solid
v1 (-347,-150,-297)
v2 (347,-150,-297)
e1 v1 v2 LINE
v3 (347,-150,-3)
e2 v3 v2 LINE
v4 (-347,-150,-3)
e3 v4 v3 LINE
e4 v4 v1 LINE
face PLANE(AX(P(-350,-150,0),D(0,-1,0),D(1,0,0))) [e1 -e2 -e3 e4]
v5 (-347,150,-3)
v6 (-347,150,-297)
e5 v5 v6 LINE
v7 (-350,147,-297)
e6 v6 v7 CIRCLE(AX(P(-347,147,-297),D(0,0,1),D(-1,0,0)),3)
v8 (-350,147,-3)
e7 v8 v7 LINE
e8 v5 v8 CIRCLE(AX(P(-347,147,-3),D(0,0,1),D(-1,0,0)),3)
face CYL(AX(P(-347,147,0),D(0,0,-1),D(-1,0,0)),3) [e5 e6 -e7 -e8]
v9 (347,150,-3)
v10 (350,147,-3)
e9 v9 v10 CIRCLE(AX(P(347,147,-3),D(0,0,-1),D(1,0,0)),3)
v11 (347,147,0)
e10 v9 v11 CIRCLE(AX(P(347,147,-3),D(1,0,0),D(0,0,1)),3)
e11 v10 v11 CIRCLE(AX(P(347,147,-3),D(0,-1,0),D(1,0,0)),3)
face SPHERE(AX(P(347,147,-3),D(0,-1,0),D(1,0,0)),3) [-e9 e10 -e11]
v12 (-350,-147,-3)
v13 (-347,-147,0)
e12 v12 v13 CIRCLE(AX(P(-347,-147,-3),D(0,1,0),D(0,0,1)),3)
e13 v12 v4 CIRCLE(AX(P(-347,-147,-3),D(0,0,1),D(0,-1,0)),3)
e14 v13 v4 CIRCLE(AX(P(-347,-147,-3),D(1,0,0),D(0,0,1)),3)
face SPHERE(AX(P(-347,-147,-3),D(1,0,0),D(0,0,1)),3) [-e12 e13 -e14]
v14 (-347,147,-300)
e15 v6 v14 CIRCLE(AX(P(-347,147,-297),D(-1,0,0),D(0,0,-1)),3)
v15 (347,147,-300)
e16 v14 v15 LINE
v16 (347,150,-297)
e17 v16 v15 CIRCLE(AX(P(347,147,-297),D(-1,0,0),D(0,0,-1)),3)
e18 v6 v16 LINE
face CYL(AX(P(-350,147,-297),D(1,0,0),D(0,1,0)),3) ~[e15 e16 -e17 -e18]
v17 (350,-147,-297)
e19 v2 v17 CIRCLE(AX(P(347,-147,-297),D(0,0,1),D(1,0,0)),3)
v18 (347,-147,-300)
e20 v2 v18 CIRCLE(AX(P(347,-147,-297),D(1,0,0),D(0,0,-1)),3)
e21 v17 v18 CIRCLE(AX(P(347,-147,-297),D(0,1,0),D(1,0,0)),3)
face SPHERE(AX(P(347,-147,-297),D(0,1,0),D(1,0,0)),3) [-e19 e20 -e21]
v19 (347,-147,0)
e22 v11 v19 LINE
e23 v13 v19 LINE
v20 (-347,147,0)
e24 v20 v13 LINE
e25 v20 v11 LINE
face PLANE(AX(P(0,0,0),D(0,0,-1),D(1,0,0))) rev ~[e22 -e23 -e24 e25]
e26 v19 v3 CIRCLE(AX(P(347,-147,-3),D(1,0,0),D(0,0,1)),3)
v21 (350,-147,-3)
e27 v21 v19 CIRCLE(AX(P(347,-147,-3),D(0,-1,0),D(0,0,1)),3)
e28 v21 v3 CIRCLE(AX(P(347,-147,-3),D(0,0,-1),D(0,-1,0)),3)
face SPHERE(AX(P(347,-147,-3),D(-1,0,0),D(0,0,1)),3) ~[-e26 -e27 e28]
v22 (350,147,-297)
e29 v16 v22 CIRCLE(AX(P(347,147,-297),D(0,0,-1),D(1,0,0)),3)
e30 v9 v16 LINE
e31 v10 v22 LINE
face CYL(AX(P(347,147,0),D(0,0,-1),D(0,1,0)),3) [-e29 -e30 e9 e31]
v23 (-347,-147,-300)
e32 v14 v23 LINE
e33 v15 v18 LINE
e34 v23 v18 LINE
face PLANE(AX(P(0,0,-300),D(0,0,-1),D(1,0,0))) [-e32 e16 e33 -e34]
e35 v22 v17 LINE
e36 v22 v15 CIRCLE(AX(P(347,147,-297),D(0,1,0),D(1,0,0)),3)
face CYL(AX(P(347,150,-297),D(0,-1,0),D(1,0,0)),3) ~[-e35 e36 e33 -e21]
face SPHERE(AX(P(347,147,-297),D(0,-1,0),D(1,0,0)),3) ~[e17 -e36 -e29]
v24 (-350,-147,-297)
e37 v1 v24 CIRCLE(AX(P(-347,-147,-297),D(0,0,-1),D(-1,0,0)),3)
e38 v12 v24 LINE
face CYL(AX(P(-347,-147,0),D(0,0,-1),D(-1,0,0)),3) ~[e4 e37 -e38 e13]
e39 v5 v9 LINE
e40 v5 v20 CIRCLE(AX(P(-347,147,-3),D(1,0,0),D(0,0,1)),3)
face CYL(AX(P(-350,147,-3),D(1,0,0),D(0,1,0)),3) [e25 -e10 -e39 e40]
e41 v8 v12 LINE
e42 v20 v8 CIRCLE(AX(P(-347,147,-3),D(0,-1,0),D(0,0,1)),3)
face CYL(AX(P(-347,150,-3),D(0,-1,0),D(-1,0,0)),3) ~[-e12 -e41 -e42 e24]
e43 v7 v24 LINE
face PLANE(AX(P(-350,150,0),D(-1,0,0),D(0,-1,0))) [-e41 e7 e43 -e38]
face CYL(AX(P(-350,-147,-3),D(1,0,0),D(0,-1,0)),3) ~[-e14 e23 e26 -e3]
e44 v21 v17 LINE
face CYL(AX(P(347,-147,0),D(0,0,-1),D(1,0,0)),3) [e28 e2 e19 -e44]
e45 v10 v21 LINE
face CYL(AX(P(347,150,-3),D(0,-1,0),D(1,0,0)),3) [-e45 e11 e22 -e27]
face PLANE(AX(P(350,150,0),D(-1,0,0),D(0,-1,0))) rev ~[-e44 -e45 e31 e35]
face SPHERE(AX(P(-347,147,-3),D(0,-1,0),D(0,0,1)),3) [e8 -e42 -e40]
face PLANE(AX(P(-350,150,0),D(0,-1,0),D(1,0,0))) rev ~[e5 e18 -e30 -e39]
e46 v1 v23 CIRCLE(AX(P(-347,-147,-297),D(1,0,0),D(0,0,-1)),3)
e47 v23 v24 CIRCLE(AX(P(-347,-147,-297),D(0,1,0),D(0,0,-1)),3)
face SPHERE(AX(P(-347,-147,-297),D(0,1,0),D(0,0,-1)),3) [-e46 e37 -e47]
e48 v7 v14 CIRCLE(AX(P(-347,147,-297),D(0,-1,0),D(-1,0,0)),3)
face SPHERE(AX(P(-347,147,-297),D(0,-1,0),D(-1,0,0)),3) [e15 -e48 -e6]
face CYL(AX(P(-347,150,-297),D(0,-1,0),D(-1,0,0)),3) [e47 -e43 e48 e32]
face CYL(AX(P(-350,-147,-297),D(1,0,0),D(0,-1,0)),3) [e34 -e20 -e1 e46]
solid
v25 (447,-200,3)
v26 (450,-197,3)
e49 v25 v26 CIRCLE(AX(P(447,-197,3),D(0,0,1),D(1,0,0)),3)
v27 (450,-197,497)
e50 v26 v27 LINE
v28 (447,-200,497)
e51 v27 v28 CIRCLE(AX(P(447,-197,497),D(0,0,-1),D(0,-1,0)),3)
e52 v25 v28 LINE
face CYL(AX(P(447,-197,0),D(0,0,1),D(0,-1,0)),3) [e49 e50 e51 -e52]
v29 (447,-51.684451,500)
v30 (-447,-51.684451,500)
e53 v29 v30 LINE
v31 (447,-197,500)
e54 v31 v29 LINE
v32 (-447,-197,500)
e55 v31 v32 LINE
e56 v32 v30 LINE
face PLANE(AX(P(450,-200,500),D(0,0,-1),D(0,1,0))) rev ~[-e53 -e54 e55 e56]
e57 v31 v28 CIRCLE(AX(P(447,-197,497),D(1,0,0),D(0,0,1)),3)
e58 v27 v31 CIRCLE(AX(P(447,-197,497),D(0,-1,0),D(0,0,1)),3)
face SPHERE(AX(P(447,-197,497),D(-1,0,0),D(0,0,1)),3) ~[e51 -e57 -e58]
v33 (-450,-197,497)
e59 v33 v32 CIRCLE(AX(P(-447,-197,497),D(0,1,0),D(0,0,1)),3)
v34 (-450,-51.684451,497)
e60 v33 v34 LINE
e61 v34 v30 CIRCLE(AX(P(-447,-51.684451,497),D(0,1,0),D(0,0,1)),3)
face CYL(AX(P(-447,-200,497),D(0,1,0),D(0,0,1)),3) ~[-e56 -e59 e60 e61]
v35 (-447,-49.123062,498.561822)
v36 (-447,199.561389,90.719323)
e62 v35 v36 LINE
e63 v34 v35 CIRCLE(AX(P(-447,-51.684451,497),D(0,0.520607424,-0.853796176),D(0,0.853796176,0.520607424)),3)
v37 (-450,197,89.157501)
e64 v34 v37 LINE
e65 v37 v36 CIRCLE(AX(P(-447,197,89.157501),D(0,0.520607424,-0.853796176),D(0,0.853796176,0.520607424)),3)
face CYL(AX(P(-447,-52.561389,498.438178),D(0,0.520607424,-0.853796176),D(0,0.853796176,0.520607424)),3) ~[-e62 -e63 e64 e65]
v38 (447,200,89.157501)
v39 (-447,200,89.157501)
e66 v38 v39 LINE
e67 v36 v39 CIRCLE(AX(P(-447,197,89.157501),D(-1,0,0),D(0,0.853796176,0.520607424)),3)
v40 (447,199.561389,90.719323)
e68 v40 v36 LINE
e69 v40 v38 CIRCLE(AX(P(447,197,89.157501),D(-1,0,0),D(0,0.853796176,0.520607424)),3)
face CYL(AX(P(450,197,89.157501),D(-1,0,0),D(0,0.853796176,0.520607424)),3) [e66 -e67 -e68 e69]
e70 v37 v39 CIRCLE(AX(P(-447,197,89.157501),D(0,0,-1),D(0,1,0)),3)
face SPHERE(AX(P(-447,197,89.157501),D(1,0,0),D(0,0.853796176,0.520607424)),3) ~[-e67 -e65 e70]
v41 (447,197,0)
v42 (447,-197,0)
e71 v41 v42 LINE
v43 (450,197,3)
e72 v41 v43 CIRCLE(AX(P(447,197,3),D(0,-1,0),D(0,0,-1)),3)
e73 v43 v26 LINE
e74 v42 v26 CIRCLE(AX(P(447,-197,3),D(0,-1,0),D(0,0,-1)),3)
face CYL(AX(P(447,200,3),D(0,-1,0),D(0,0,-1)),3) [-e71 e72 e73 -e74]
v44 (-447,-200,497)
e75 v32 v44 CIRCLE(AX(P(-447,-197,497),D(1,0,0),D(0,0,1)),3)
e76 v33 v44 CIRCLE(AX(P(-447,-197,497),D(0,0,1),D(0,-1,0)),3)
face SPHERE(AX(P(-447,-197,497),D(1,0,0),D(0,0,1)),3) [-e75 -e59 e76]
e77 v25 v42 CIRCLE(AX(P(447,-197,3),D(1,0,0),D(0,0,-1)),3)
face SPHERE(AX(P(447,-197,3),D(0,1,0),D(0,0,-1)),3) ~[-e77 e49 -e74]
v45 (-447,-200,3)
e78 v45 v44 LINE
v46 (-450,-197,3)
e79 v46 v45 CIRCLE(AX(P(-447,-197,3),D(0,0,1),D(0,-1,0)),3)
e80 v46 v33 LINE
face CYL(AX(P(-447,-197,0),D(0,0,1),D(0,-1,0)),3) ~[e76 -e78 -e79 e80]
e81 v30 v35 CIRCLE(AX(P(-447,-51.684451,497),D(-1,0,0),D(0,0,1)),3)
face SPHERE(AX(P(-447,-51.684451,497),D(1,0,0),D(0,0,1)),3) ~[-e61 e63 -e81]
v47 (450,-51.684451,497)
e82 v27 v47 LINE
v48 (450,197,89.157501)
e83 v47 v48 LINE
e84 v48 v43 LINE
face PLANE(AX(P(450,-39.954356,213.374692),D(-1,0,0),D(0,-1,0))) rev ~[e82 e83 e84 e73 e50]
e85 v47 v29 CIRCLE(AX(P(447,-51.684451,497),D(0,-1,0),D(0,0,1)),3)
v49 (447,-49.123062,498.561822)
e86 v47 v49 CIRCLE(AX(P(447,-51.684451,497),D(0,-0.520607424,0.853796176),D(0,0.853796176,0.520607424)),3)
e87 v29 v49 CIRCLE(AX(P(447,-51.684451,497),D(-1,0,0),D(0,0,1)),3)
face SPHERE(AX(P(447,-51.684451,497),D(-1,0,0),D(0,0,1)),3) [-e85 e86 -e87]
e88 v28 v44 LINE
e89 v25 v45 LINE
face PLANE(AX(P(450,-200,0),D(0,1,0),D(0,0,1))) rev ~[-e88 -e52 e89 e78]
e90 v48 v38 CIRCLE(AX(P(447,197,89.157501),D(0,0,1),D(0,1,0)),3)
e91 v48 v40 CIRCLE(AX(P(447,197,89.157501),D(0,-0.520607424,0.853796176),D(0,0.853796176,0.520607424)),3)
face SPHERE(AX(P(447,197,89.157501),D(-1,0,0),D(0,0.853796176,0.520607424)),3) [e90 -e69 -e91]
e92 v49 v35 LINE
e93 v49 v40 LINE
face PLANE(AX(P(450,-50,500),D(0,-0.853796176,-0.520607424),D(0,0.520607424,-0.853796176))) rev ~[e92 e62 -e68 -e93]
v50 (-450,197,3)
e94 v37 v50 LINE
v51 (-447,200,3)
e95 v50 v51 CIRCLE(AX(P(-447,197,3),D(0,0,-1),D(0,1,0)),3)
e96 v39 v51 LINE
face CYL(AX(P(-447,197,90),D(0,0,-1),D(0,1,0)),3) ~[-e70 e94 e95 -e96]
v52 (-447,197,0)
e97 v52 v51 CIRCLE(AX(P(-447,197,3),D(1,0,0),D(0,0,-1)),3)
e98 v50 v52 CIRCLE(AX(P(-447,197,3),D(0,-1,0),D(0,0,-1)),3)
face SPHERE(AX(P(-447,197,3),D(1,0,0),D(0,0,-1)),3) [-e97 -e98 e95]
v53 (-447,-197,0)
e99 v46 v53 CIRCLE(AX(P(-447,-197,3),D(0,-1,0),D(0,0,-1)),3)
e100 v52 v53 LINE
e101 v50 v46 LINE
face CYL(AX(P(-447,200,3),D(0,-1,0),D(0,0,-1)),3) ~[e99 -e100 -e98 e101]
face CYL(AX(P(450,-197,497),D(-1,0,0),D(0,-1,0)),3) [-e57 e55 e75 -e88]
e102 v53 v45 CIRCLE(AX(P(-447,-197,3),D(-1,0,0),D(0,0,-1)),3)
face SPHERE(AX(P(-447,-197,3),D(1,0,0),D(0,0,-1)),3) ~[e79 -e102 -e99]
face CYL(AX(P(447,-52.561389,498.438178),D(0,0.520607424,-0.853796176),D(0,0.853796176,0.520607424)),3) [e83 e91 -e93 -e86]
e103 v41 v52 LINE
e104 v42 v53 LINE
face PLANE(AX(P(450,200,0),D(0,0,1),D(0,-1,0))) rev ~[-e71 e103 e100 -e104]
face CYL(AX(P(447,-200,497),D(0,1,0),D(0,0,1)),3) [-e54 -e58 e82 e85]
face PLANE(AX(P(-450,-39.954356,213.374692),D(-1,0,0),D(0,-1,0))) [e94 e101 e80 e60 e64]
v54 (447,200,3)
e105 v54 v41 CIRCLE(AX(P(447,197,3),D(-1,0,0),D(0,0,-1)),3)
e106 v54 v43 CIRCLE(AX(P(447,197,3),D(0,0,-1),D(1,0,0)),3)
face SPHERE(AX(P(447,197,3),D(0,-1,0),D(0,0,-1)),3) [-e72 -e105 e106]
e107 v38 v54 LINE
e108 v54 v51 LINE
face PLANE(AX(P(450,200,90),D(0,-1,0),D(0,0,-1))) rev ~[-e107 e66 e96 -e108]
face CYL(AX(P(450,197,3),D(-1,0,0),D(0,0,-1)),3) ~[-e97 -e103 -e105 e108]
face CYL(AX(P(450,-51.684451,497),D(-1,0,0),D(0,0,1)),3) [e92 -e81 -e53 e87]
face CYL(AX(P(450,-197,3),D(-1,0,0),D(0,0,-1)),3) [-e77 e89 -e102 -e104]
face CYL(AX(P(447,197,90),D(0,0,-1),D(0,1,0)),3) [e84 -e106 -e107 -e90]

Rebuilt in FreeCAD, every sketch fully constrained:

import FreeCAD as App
import Part
import Sketcher
from FreeCAD import Vector


def add_polygon(sketch, points):
    """Adds a closed chain of lines whose ends are joined by coincident constraints."""
    first, n = sketch.GeometryCount, len(points)
    for a, b in zip(points, points[1:] + points[:1]):
        sketch.addGeometry(Part.LineSegment(App.Vector(*a, 0), App.Vector(*b, 0)), False)
    for i in range(n):
        sketch.addConstraint(Sketcher.Constraint("Coincident", first + i, 2, first + (i + 1) % n, 1))

doc = App.newDocument("Part")
body = doc.addObject("PartDesign::Body", "Body")

sketch1 = body.newObject("Sketcher::SketchObject", "Sketch")
sketch1.AttachmentSupport = (doc.getObject("YZ_Plane"), [""])
sketch1.MapMode = "FlatFace"
sketch1.AttachmentOffset = App.Placement(Vector(0, 0, 450), App.Rotation())
add_polygon(sketch1, [(200, 0), (-200, 0), (-200, 500), (-50, 500), (200, 90)])
sketch1.addConstraint(Sketcher.Constraint("Horizontal", 0))
sketch1.addConstraint(Sketcher.Constraint("Vertical", 1))
sketch1.addConstraint(Sketcher.Constraint("Horizontal", 2))
sketch1.addConstraint(Sketcher.Constraint("Vertical", 4))
sketch1.addConstraint(Sketcher.Constraint("Symmetric", 0, 2, 4, 2, -1, 1))
sketch1.addConstraint(Sketcher.Constraint("DistanceX", 0, 2, 0, 1, 400.0))
sketch1.addConstraint(Sketcher.Constraint("DistanceX", 2, 1, 2, 2, 150.0))
sketch1.addConstraint(Sketcher.Constraint("DistanceY", 1, 1, 1, 2, 500.0))
sketch1.addConstraint(Sketcher.Constraint("DistanceY", 4, 2, 4, 1, 90.0))
pad1 = body.newObject("PartDesign::Pad", "Pad")
pad1.Profile = sketch1
pad1.Length = 900
pad1.Reversed = True
doc.recompute()

fillet = body.newObject("PartDesign::Fillet", "Fillet")
fillet.Base = (pad1, ["Edge1"])
fillet.UseAllEdges = True
fillet.Radius = 3
body2 = doc.addObject("PartDesign::Body", "Body001")

sketch2 = body2.newObject("Sketcher::SketchObject", "Sketch001")
sketch2.AttachmentSupport = (doc.getObject("XY_Plane001"), [""])
sketch2.MapMode = "FlatFace"
add_polygon(sketch2, [(-350, -150), (-350, 150), (350, 150), (350, -150)])
sketch2.addConstraint(Sketcher.Constraint("Vertical", 0))
sketch2.addConstraint(Sketcher.Constraint("Horizontal", 1))
sketch2.addConstraint(Sketcher.Constraint("Vertical", 2))
sketch2.addConstraint(Sketcher.Constraint("Horizontal", 3))
sketch2.addConstraint(Sketcher.Constraint("Symmetric", 0, 2, 2, 2, -1, 1))
sketch2.addConstraint(Sketcher.Constraint("DistanceX", 1, 1, 1, 2, 700.0))
sketch2.addConstraint(Sketcher.Constraint("DistanceY", 0, 1, 0, 2, 300.0))
pad2 = body2.newObject("PartDesign::Pad", "Pad001")
pad2.Profile = sketch2
pad2.Length = 300
pad2.Reversed = True
doc.recompute()

fillet2 = body2.newObject("PartDesign::Fillet", "Fillet001")
fillet2.Base = (pad2, ["Edge1"])
fillet2.UseAllEdges = True
fillet2.Radius = 3

doc.recompute()
